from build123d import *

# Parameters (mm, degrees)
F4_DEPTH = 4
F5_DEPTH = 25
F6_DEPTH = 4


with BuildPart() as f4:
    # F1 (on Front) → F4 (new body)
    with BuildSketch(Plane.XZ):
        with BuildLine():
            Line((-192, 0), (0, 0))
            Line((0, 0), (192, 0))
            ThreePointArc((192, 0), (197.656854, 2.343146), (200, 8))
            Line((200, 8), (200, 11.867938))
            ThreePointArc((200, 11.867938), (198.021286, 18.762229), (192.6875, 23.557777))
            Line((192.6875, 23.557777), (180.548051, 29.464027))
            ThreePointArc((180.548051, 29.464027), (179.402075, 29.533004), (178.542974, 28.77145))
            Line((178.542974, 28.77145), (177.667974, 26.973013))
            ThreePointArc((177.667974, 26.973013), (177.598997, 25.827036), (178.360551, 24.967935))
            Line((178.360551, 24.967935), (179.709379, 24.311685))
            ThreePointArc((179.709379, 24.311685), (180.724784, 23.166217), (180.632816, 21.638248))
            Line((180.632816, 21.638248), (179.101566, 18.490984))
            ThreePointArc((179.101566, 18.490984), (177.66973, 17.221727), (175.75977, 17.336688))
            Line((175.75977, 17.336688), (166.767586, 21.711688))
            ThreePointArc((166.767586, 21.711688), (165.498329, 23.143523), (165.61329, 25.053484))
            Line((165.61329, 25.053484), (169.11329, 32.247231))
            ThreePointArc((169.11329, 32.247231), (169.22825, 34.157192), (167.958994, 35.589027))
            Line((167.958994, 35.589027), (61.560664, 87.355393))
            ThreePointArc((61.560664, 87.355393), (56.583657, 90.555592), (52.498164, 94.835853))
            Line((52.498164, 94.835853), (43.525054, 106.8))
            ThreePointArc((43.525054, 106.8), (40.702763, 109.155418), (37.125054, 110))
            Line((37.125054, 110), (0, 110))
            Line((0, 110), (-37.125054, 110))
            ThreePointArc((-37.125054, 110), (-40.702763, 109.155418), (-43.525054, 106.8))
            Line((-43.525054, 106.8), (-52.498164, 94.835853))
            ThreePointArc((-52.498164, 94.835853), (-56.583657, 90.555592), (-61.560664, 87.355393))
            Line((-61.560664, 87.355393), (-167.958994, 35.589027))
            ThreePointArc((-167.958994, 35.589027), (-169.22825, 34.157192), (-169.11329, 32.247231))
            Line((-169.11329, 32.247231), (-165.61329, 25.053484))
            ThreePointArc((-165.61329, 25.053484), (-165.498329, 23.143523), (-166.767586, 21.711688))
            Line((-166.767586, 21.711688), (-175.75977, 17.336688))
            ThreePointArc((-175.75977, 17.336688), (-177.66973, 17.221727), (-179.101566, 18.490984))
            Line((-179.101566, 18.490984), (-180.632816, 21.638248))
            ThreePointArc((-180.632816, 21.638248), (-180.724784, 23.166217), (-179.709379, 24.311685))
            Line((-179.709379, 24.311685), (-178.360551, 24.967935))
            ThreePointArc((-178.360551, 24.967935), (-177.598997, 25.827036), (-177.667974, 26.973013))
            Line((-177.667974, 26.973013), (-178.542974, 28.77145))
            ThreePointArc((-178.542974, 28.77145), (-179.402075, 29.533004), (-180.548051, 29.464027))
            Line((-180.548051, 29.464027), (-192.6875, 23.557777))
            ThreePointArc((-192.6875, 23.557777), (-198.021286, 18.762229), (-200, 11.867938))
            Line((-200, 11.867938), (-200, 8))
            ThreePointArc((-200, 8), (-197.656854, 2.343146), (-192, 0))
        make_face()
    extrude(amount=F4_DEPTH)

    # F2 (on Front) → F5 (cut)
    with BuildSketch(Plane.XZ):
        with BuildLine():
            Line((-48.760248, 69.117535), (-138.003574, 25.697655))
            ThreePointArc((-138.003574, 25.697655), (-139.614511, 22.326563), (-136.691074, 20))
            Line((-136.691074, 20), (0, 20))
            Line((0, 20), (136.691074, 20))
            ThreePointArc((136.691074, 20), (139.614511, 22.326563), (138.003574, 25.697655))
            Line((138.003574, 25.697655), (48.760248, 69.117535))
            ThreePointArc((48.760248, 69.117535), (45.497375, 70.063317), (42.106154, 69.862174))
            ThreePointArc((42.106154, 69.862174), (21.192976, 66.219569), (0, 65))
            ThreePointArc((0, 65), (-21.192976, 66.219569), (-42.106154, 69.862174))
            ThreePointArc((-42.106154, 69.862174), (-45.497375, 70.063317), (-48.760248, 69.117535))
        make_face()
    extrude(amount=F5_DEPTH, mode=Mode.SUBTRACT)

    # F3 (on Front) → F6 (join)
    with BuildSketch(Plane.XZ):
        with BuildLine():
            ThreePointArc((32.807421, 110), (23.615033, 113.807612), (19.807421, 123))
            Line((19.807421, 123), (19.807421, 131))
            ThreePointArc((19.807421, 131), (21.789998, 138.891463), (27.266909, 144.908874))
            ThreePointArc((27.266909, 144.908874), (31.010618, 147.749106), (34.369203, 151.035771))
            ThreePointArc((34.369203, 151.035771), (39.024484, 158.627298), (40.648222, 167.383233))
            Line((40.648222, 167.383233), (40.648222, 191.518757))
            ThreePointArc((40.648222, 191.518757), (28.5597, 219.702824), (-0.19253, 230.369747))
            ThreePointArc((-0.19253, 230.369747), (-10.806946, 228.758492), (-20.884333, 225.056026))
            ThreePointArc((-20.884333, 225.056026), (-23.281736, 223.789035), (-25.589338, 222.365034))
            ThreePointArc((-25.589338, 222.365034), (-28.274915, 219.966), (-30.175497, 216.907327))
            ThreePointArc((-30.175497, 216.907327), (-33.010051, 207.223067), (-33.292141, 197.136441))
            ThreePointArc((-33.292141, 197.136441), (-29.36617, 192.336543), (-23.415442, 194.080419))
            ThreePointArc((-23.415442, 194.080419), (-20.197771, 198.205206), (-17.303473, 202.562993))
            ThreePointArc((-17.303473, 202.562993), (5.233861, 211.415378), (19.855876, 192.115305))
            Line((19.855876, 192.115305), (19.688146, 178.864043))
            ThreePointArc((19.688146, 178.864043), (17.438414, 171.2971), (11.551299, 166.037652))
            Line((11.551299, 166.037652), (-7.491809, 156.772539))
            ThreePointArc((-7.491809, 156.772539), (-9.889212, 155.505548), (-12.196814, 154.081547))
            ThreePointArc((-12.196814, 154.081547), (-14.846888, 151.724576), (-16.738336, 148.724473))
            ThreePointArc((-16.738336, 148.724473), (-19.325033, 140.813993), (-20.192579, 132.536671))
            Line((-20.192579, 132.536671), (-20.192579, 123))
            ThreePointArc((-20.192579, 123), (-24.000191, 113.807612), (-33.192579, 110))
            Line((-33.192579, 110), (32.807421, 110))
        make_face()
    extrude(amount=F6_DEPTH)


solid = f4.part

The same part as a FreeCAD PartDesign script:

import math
import FreeCAD as App
import Part
import Sketcher

V = App.Vector
Q = App.Units.Quantity

doc = App.newDocument("Part")
params = doc.addObject("Spreadsheet::Sheet", "Params")
for row, (alias, value) in enumerate([
    ("sketch1_radius", "8.000001 mm"),
    ("sketch1_radius2", "13 mm"),
    ("sketch1_radius3", "2.000001 mm"),
    ("sketch1_radius4", "1.499998 mm"),
    ("sketch1_radius5", "2.5 mm"),
    ("pad1_length", "4 mm"),
    ("sketch2_radius", "3 mm"),
    ("sketch2_radius2", "10 mm"),
    ("pocket1_length", "25 mm"),
    ("sketch3_radius", "13.000001 mm"),
    ("sketch3_radius2", "13.000001 mm"),
    ("sketch3_width", "66 mm"),
    ("sketch3_height", "8 mm"),
    ("pad2_length", "4 mm"),
], start=1):
    params.set(f"A{row}", alias)
    params.set(f"B{row}", "=" + value)
    params.setAlias(f"B{row}", alias)

body = doc.addObject("PartDesign::Body", "Body")

# Sketch on XZ plane
sketch1 = body.newObject("Sketcher::SketchObject", "Sketch")
sketch1.AttachmentSupport = (doc.getObject("XZ_Plane"), [""])
sketch1.MapMode = "FlatFace"
sketch1.addGeometry([
    Part.LineSegment(V(-192, 0, 0), V(192, 0, 0)),  # 0
    Part.ArcOfCircle(Part.Circle(V(192, 8, 0), V(0, 0, 1), 8), math.radians(-90), math.radians(0)),  # 1
    Part.LineSegment(V(200, 8, 0), V(200, 11.9, 0)),  # 2
    Part.ArcOfCircle(Part.Circle(V(187, 11.9, 0), V(0, 0, 1), 13), math.radians(0), math.radians(64)),  # 3
    Part.LineSegment(V(192.7, 23.6, 0), V(180.5, 29.5, 0)),  # 4
    Part.ArcOfCircle(Part.Circle(V(179.9, 28.1, 0), V(0, 0, 1), 1.5), math.radians(64), math.radians(154)),  # 5
    Part.LineSegment(V(178.5, 28.8, 0), V(177.7, 27, 0)),  # 6
    Part.ArcOfCircle(Part.Circle(V(179, 26.3, 0), V(0, 0, 1), 1.5), math.radians(154), math.radians(244)),  # 7
    Part.LineSegment(V(178.4, 25, 0), V(179.7, 24.3, 0)),  # 8
    Part.ArcOfCircle(Part.Circle(V(178.8, 22.5, 0), V(0, 0, 1), 2), math.radians(-26), math.radians(64)),  # 9
    Part.LineSegment(V(180.6, 21.6, 0), V(179.1, 18.5, 0)),  # 10
    Part.ArcOfCircle(Part.Circle(V(176.9, 19.6, 0), V(0, 0, 1), 2.5), math.radians(-116), math.radians(-26)),  # 11
    Part.LineSegment(V(175.8, 17.3, 0), V(166.8, 21.7, 0)),  # 12
    Part.ArcOfCircle(Part.Circle(V(167.9, 24, 0), V(0, 0, 1), 2.5), math.radians(154), math.radians(244)),  # 13
    Part.LineSegment(V(165.6, 25.1, 0), V(169.1, 32.2, 0)),  # 14
    Part.ArcOfCircle(Part.Circle(V(166.9, 33.3, 0), V(0, 0, 1), 2.5), math.radians(-26), math.radians(64)),  # 15
    Part.LineSegment(V(168, 35.6, 0), V(61.6, 87.4, 0)),  # 16
    Part.ArcOfCircle(Part.Circle(V(72.5, 109.8, 0), V(0, 0, 1), 25), math.radians(-143), math.radians(-116)),  # 17
    Part.LineSegment(V(52.5, 94.8, 0), V(43.5, 106.8, 0)),  # 18
    Part.ArcOfCircle(Part.Circle(V(37.1, 102, 0), V(0, 0, 1), 8), math.radians(37), math.radians(90)),  # 19
    Part.LineSegment(V(37.1, 110, 0), V(-37.1, 110, 0)),  # 20
    Part.ArcOfCircle(Part.Circle(V(-37.1, 102, 0), V(0, 0, 1), 8), math.radians(90), math.radians(143)),  # 21
    Part.LineSegment(V(-43.5, 106.8, 0), V(-52.5, 94.8, 0)),  # 22
    Part.ArcOfCircle(Part.Circle(V(-72.5, 109.8, 0), V(0, 0, 1), 25), math.radians(-64), math.radians(-37)),  # 23
    Part.LineSegment(V(-61.6, 87.4, 0), V(-168, 35.6, 0)),  # 24
    Part.ArcOfCircle(Part.Circle(V(-166.9, 33.3, 0), V(0, 0, 1), 2.5), math.radians(116), math.radians(206)),  # 25
    Part.LineSegment(V(-169.1, 32.2, 0), V(-165.6, 25.1, 0)),  # 26
    Part.ArcOfCircle(Part.Circle(V(-167.9, 24, 0), V(0, 0, 1), 2.5), math.radians(-64), math.radians(26)),  # 27
    Part.LineSegment(V(-166.8, 21.7, 0), V(-175.8, 17.3, 0)),  # 28
    Part.ArcOfCircle(Part.Circle(V(-176.9, 19.6, 0), V(0, 0, 1), 2.5), math.radians(-154), math.radians(-64)),  # 29
    Part.LineSegment(V(-179.1, 18.5, 0), V(-180.6, 21.6, 0)),  # 30
    Part.ArcOfCircle(Part.Circle(V(-178.8, 22.5, 0), V(0, 0, 1), 2), math.radians(116), math.radians(206)),  # 31
    Part.LineSegment(V(-179.7, 24.3, 0), V(-178.4, 25, 0)),  # 32
    Part.ArcOfCircle(Part.Circle(V(-179, 26.3, 0), V(0, 0, 1), 1.5), math.radians(-64), math.radians(26)),  # 33
    Part.LineSegment(V(-177.7, 27, 0), V(-178.5, 28.8, 0)),  # 34
    Part.ArcOfCircle(Part.Circle(V(-179.9, 28.1, 0), V(0, 0, 1), 1.5), math.radians(26), math.radians(116)),  # 35
    Part.LineSegment(V(-180.5, 29.5, 0), V(-192.7, 23.6, 0)),  # 36
    Part.ArcOfCircle(Part.Circle(V(-187, 11.9, 0), V(0, 0, 1), 13), math.radians(116), math.radians(180)),  # 37
    Part.LineSegment(V(-200, 11.9, 0), V(-200, 8, 0)),  # 38
    Part.ArcOfCircle(Part.Circle(V(-192, 8, 0), V(0, 0, 1), 8), math.radians(-180), math.radians(-90)),  # 39
], False)
sketch1.addConstraint([
    Sketcher.Constraint("Tangent", 0, 2, 1, 1),
    Sketcher.Constraint("Tangent", 1, 2, 2, 1),
    Sketcher.Constraint("Tangent", 2, 2, 3, 1),
    Sketcher.Constraint("Tangent", 3, 2, 4, 1),
    Sketcher.Constraint("Tangent", 4, 2, 5, 1),
    Sketcher.Constraint("Tangent", 5, 2, 6, 1),
    Sketcher.Constraint("Tangent", 6, 2, 7, 1),
    Sketcher.Constraint("Tangent", 7, 2, 8, 1),
    Sketcher.Constraint("Tangent", 8, 2, 9, 2),
    Sketcher.Constraint("Tangent", 9, 1, 10, 1),
    Sketcher.Constraint("Tangent", 10, 2, 11, 2),
    Sketcher.Constraint("Tangent", 11, 1, 12, 1),
    Sketcher.Constraint("Tangent", 12, 2, 13, 2),
    Sketcher.Constraint("Tangent", 13, 1, 14, 1),
    Sketcher.Constraint("Tangent", 14, 2, 15, 1),
    Sketcher.Constraint("Tangent", 15, 2, 16, 1),
    Sketcher.Constraint("Tangent", 16, 2, 17, 2),
    Sketcher.Constraint("Tangent", 17, 1, 18, 1),
    Sketcher.Constraint("Tangent", 18, 2, 19, 1),
    Sketcher.Constraint("Tangent", 19, 2, 20, 1),
    Sketcher.Constraint("Tangent", 20, 2, 21, 1),
    Sketcher.Constraint("Tangent", 21, 2, 22, 1),
    Sketcher.Constraint("Tangent", 22, 2, 23, 2),
    Sketcher.Constraint("Tangent", 23, 1, 24, 1),
    Sketcher.Constraint("Tangent", 24, 2, 25, 1),
    Sketcher.Constraint("Tangent", 25, 2, 26, 1),
    Sketcher.Constraint("Tangent", 26, 2, 27, 2),
    Sketcher.Constraint("Tangent", 27, 1, 28, 1),
    Sketcher.Constraint("Tangent", 28, 2, 29, 2),
    Sketcher.Constraint("Tangent", 29, 1, 30, 1),
    Sketcher.Constraint("Tangent", 30, 2, 31, 2),
    Sketcher.Constraint("Tangent", 31, 1, 32, 1),
    Sketcher.Constraint("Tangent", 32, 2, 33, 1),
    Sketcher.Constraint("Tangent", 33, 2, 34, 1),
    Sketcher.Constraint("Tangent", 34, 2, 35, 1),
    Sketcher.Constraint("Tangent", 35, 2, 36, 1),
    Sketcher.Constraint("Tangent", 36, 2, 37, 1),
    Sketcher.Constraint("Tangent", 37, 2, 38, 1),
    Sketcher.Constraint("Tangent", 38, 2, 39, 1),
    Sketcher.Constraint("Tangent", 39, 2, 0, 1),
    Sketcher.Constraint("Horizontal", 0),
    Sketcher.Constraint("Vertical", 2),
    Sketcher.Constraint("Horizontal", 20),
    Sketcher.Constraint("Vertical", 38),
    Sketcher.Constraint("Equal", 5, 7),
    Sketcher.Constraint("Equal", 11, 13),
    Sketcher.Constraint("Equal", 11, 15),
    Sketcher.Constraint("Equal", 19, 21),
    Sketcher.Constraint("Equal", 17, 23),
    Sketcher.Constraint("Equal", 15, 25),
    Sketcher.Constraint("Equal", 13, 27),
    Sketcher.Constraint("Equal", 27, 29),
    Sketcher.Constraint("Equal", 9, 31),
    Sketcher.Constraint("Equal", 7, 33),
    Sketcher.Constraint("Equal", 33, 35),
    Sketcher.Constraint("Equal", 3, 37),
    Sketcher.Constraint("Equal", 1, 39),
    Sketcher.Constraint("Symmetric", 0, 2, 39, 2, -1, 1),
    Sketcher.Constraint("Symmetric", 17, 3, 23, 3, -2),
    Sketcher.Constraint("Symmetric", 15, 3, 25, 3, -2),
    Sketcher.Constraint("Symmetric", 13, 3, 27, 3, -2),
    Sketcher.Constraint("Symmetric", 11, 3, 29, 3, -2),
    Sketcher.Constraint("Symmetric", 9, 3, 31, 3, -2),
    Sketcher.Constraint("Symmetric", 7, 3, 33, 3, -2),
    Sketcher.Constraint("Symmetric", 5, 3, 35, 3, -2),
    Sketcher.Constraint("Perpendicular", 4, 6),
    Sketcher.Constraint("Perpendicular", 6, 8),
    Sketcher.Constraint("Perpendicular", 8, 10),
    Sketcher.Constraint("Perpendicular", 10, 12),
    Sketcher.Constraint("Perpendicular", 12, 14),
    Sketcher.Constraint("Perpendicular", 14, 16),
    Sketcher.Constraint("Perpendicular", 34, 36),
    Sketcher.Constraint("Horizontal", 18, 2, 21, 2),
    Sketcher.Constraint("Radius", 1, Q("8.000001 mm")),
    Sketcher.Constraint("Radius", 3, Q("13 mm")),
    Sketcher.Constraint("Radius", 9, Q("2.000001 mm")),
    Sketcher.Constraint("Radius", 5, Q("1.499998 mm")),
    Sketcher.Constraint("Radius", 11, Q("2.5 mm")),
    Sketcher.Constraint("DistanceX", 0, 1, 0, 2, Q("384 mm")),
    Sketcher.Constraint("Distance", 6, Q("2 mm")),
    Sketcher.Constraint("Distance", 12, Q("10 mm")),
    Sketcher.Constraint("Distance", 14, Q("8 mm")),
    Sketcher.Constraint("DistanceY", -1, 1, 19, 2, Q("110 mm")),
    Sketcher.Constraint("DistanceX", 17, 1, 17, 3, Q("19.999998 mm")),
    Sketcher.Constraint("DistanceY", 17, 1, 17, 3, Q("14.999999 mm")),
    Sketcher.Constraint("Distance", 4, Q("13.5 mm")),
    Sketcher.Constraint("Distance", 8, Q("1.5 mm")),
    Sketcher.Constraint("Distance", 10, Q("3.5 mm")),
    Sketcher.Constraint("DistanceY", -1, 1, 18, 2, Q("106.8 mm")),
    Sketcher.Constraint("DistanceX", 13, 1, 14, 2, Q("3.5 mm")),
    Sketcher.Constraint("DistanceY", 2, 1, 2, 2, Q("3.867938 mm")),
    Sketcher.Constraint("DistanceX", 21, 3, 15, 3, Q("203.990299 mm")),
])
sketch1.setExpression("Constraints[73]", "Params.sketch1_radius")
sketch1.setExpression("Constraints[74]", "Params.sketch1_radius2")
sketch1.setExpression("Constraints[75]", "Params.sketch1_radius3")
sketch1.setExpression("Constraints[76]", "Params.sketch1_radius4")
sketch1.setExpression("Constraints[77]", "Params.sketch1_radius5")
pad1 = body.newObject("PartDesign::Pad", "Pad")
pad1.Profile = sketch1
pad1.setExpression("Length", "Params.pad1_length")

# Sketch on XZ plane
sketch2 = body.newObject("Sketcher::SketchObject", "Sketch001")
sketch2.AttachmentSupport = (doc.getObject("XZ_Plane"), [""])
sketch2.MapMode = "FlatFace"
sketch2.addGeometry([
    Part.LineSegment(V(-48.8, 69.1, 0), V(-138, 25.7, 0)),  # 0
    Part.ArcOfCircle(Part.Circle(V(-136.7, 23, 0), V(0, 0, 1), 3), math.radians(116), math.radians(270)),  # 1
    Part.LineSegment(V(-136.7, 20, 0), V(136.7, 20, 0)),  # 2
    Part.ArcOfCircle(Part.Circle(V(136.7, 23, 0), V(0, 0, 1), 3), math.radians(-90), math.radians(64)),  # 3
    Part.LineSegment(V(138, 25.7, 0), V(48.8, 69.1, 0)),  # 4
    Part.ArcOfCircle(Part.Circle(V(44.4, 60.1, 0), V(0, 0, 1), 10), math.radians(64), math.radians(103)),  # 5
    Part.ArcOfCircle(Part.Circle(V(0, 249.7, 0), V(0, 0, 1), 184.7), math.radians(-90), math.radians(-76.83)),  # 6
    Part.ArcOfCircle(Part.Circle(V(0, 249.7, 0), V(0, 0, 1), 184.7), math.radians(-103.17), math.radians(-90)),  # 7
    Part.ArcOfCircle(Part.Circle(V(-44.4, 60.1, 0), V(0, 0, 1), 10), math.radians(77), math.radians(116)),  # 8
], False)
sketch2.addConstraint([
    Sketcher.Constraint("Tangent", 0, 2, 1, 1),
    Sketcher.Constraint("Tangent", 1, 2, 2, 1),
    Sketcher.Constraint("Tangent", 2, 2, 3, 1),
    Sketcher.Constraint("Tangent", 3, 2, 4, 1),
    Sketcher.Constraint("Tangent", 4, 2, 5, 1),
    Sketcher.Constraint("Tangent", 5, 2, 6, 2),
    Sketcher.Constraint("Tangent", 6, 1, 7, 2),
    Sketcher.Constraint("Tangent", 7, 1, 8, 1),
    Sketcher.Constraint("Tangent", 8, 2, 0, 1),
    Sketcher.Constraint("Horizontal", 2),
    Sketcher.Constraint("Equal", 1, 3),
    Sketcher.Constraint("Equal", 6, 7),
    Sketcher.Constraint("Equal", 5, 8),
    Sketcher.Constraint("Symmetric", 5, 3, 8, 3, -2),
    Sketcher.Constraint("PointOnObject", 6, 1, -2),
    Sketcher.Constraint("Horizontal", 0, 2, 3, 2),
    Sketcher.Constraint("Radius", 1, Q("3 mm")),
    Sketcher.Constraint("Radius", 5, Q("10 mm")),
    Sketcher.Constraint("DistanceY", -1, 1, 1, 3, Q("23 mm")),
    Sketcher.Constraint("DistanceY", -1, 1, 6, 1, Q("65 mm")),
    Sketcher.Constraint("Radius", 6, Q("184.749582 mm")),
    Sketcher.Constraint("DistanceX", 5, 3, 4, 2, Q("4.375 mm")),
    Sketcher.Constraint("Distance", 0, Q("99.245439 mm")),
])
sketch2.setExpression("Constraints[16]", "Params.sketch2_radius")
sketch2.setExpression("Constraints[17]", "Params.sketch2_radius2")
pocket1 = body.newObject("PartDesign::Pocket", "Pocket")
pocket1.Profile = sketch2
pocket1.setExpression("Length", "Params.pocket1_length")
pocket1.Reversed = True

# Sketch on XZ plane
sketch3 = body.newObject("Sketcher::SketchObject", "Sketch002")
sketch3.AttachmentSupport = (doc.getObject("XZ_Plane"), [""])
sketch3.MapMode = "FlatFace"
sketch3.addGeometry([
    Part.ArcOfCircle(Part.Circle(V(32.807422, 123.000001, 0), V(0, 0, 1), 13.000001), math.radians(-179.999998), math.radians(-90.000002)),  # 0
    Part.LineSegment(V(19.807421, 123, 0), V(19.807421, 131, 0)),  # 1
    Part.ArcOfCircle(Part.Circle(V(36.504327, 131, 0), V(0, 0, 1), 16.696906), math.radians(123.589666), math.radians(179.999999)),  # 2
    Part.ArcOfCircle(Part.Circle(V(6.546222, 176.108213, 0), V(0, 0, 1), 37.453246), math.radians(-56.410326), math.radians(-42.023325)),  # 3
    Part.ArcOfCircle(Part.Circle(V(16.228356, 167.383233, 0), V(0, 0, 1), 24.419866), math.radians(-42.023313), math.radians(-0.000001)),  # 4
    Part.LineSegment(V(40.648222, 167.383233, 0), V(40.648222, 191.518757, 0)),  # 5
    Part.ArcOfCircle(Part.Circle(V(1.748762, 191.518758, 0), V(0, 0, 1), 38.89946), math.radians(-0.000001), math.radians(92.860556)),  # 6
    Part.ArcOfCircle(Part.Circle(V(2.471666, 177.051143, 0), V(0, 0, 1), 53.385124), math.radians(92.860546), math.radians(115.944488)),  # 7
    Part.ArcOfCircle(Part.Circle(V(-3.099551, 188.501944, 0), V(0, 0, 1), 40.650946), math.radians(115.944469), math.radians(123.589673)),  # 8
    Part.ArcOfCircle(Part.Circle(V(-18.592443, 211.829734, 0), V(0, 0, 1), 12.647098), math.radians(123.589653), math.radians(156.329087)),  # 9
    Part.ArcOfCircle(Part.Circle(V(5.913416, 201.087247, 0), V(0, 0, 1), 39.404119), math.radians(156.329085), math.radians(185.754361)),  # 10
    Part.ArcOfCircle(Part.Circle(V(-27.706846, 197.69928, 0), V(0, 0, 1), 5.613582), math.radians(-174.245637), math.radians(-40.140312)),  # 11
    Part.ArcOfCircle(Part.Circle(V(-75.906431, 238.345098, 0), V(0, 0, 1), 68.663424), math.radians(-40.140315), math.radians(-31.407625)),  # 12
    Part.ArcOfCircle(Part.Circle(V(-0.19253, 192.115304, 0), V(0, 0, 1), 20.048406), math.radians(0.000003), math.radians(148.592377)),  # 13
    Part.LineSegment(V(19.855876, 192.115305, 0), V(19.688146, 178.864043, 0)),  # 14
    Part.ArcOfCircle(Part.Circle(V(5.221742, 179.047151, 0), V(0, 0, 1), 14.467562), math.radians(-64.055529), math.radians(-0.725182)),  # 15
    Part.LineSegment(V(11.551299, 166.037652, 0), V(-7.491809, 156.772539, 0)),  # 16
    Part.ArcOfCircle(Part.Circle(V(10.292973, 120.218457, 0), V(0, 0, 1), 40.650946), math.radians(115.944469), math.radians(123.589673)),  # 17
    Part.ArcOfCircle(Part.Circle(V(-5.19991, 143.546239, 0), V(0, 0, 1), 12.64711), math.radians(123.589669), math.radians(155.83033)),  # 18
    Part.ArcOfCircle(Part.Circle(V(19.211491, 132.590856, 0), V(0, 0, 1), 39.404107), math.radians(155.830339), math.radians(180.078788)),  # 19
    Part.LineSegment(V(-20.192579, 132.536671, 0), V(-20.192579, 123, 0)),  # 20
    Part.ArcOfCircle(Part.Circle(V(-33.19258, 123.000001, 0), V(0, 0, 1), 13.000001), math.radians(-89.999998), math.radians(-0.000002)),  # 21
    Part.LineSegment(V(-33.192579, 110, 0), V(32.807421, 110, 0)),  # 22
], False)
sketch3.addConstraint([
    Sketcher.Constraint("Coincident", 0, 1, 1, 1),
    Sketcher.Constraint("Coincident", 1, 2, 2, 2),
    Sketcher.Constraint("Coincident", 2, 1, 3, 1),
    Sketcher.Constraint("Coincident", 3, 2, 4, 1),
    Sketcher.Constraint("Coincident", 4, 2, 5, 1),
    Sketcher.Constraint("Coincident", 5, 2, 6, 1),
    Sketcher.Constraint("Coincident", 6, 2, 7, 1),
    Sketcher.Constraint("Coincident", 7, 2, 8, 1),
    Sketcher.Constraint("Coincident", 8, 2, 9, 1),
    Sketcher.Constraint("Coincident", 9, 2, 10, 1),
    Sketcher.Constraint("Coincident", 10, 2, 11, 1),
    Sketcher.Constraint("Coincident", 11, 2, 12, 1),
    Sketcher.Constraint("Coincident", 12, 2, 13, 2),
    Sketcher.Constraint("Coincident", 13, 1, 14, 1),
    Sketcher.Constraint("Coincident", 14, 2, 15, 2),
    Sketcher.Constraint("Coincident", 15, 1, 16, 1),
    Sketcher.Constraint("Coincident", 16, 2, 17, 1),
    Sketcher.Constraint("Coincident", 17, 2, 18, 1),
    Sketcher.Constraint("Coincident", 18, 2, 19, 1),
    Sketcher.Constraint("Coincident", 19, 2, 20, 1),
    Sketcher.Constraint("Coincident", 20, 2, 21, 2),
    Sketcher.Constraint("Coincident", 21, 1, 22, 1),
    Sketcher.Constraint("Coincident", 22, 2, 0, 2),
    Sketcher.Constraint("Vertical", 1),
    Sketcher.Constraint("Vertical", 5),
    Sketcher.Constraint("Vertical", 20),
    Sketcher.Constraint("Horizontal", 22),
    Sketcher.Constraint("Radius", 0, Q("13.000001 mm")),
    Sketcher.Constraint("Radius", 21, Q("13.000001 mm")),
    Sketcher.Constraint("DistanceX", 22, 1, 22, 2, Q("66 mm")),
    Sketcher.Constraint("DistanceY", 1, 1, 1, 2, Q("8 mm")),
    Sketcher.Constraint("DistanceY", -1, 1, 0, 3, Q("123.000001 mm")),
    Sketcher.Constraint("DistanceY", -1, 1, 2, 3, Q("131 mm")),
    Sketcher.Constraint("DistanceY", -1, 1, 0, 1, Q("123 mm")),
    Sketcher.Constraint("DistanceY", -1, 1, 20, 2, Q("123 mm")),
    Sketcher.Constraint("DistanceX", 21, 3, 0, 3, Q("66.000001 mm")),
    Sketcher.Constraint("DistanceX", 21, 1, 20, 2, Q("13 mm")),
    Sketcher.Constraint("Radius", 6, Q("38.89946 mm")),
    Sketcher.Constraint("Radius", 10, Q("39.404119 mm")),
    Sketcher.Constraint("Radius", 18, Q("12.64711 mm")),
    Sketcher.Constraint("Radius", 2, Q("16.696906 mm")),
    Sketcher.Constraint("Radius", 3, Q("37.453246 mm")),
    Sketcher.Constraint("Radius", 4, Q("24.419866 mm")),
    Sketcher.Constraint("Radius", 7, Q("53.385124 mm")),
    Sketcher.Constraint("Radius", 8, Q("40.650946 mm")),
    Sketcher.Constraint("Radius", 9, Q("12.647098 mm")),
    Sketcher.Constraint("Radius", 11, Q("5.613582 mm")),
    Sketcher.Constraint("Radius", 12, Q("68.663424 mm")),
    Sketcher.Constraint("Radius", 13, Q("20.048406 mm")),
    Sketcher.Constraint("Radius", 15, Q("14.467562 mm")),
    Sketcher.Constraint("Radius", 17, Q("40.650946 mm")),
    Sketcher.Constraint("Radius", 19, Q("39.404107 mm")),
    Sketcher.Constraint("DistanceX", 3, 3, 4, 2, Q("34.102 mm")),
    Sketcher.Constraint("DistanceX", 11, 2, 9, 3, Q("4.822999 mm")),
    Sketcher.Constraint("Distance", 16, Q("21.1774 mm")),
    Sketcher.Constraint("DistanceY", 20, 2, 20, 1, Q("9.536671 mm")),
    Sketcher.Constraint("DistanceX", -1, 1, 15, 1, Q("11.551299 mm")),
    Sketcher.Constraint("DistanceX", 3, 3, 0, 3, Q("26.2612 mm")),
    Sketcher.Constraint("DistanceY", 7, 3, 8, 3, Q("11.450801 mm")),
    Sketcher.Constraint("DistanceX", 9, 3, 4, 3, Q("34.8208 mm")),
    Sketcher.Constraint("DistanceY", 4, 3, 9, 3, Q("44.446501 mm")),
    Sketcher.Constraint("DistanceY", 17, 3, 19, 3, Q("12.372399 mm")),
    Sketcher.Constraint("DistanceX", 18, 3, 19, 3, Q("24.4114 mm")),
    Sketcher.Constraint("DistanceY", 10, 3, 6, 2, Q("29.2825 mm")),
    Sketcher.Constraint("DistanceY", 9, 3, 8, 2, Q("10.5353 mm")),
    Sketcher.Constraint("DistanceY", 9, 2, 7, 2, Q("8.148699 mm")),
    Sketcher.Constraint("DistanceX", 10, 2, 11, 2, Q("9.876699 mm")),
    Sketcher.Constraint("DistanceY", 7, 3, 14, 2, Q("1.8129 mm")),
    Sketcher.Constraint("DistanceY", 15, 1, 15, 3, Q("13.009499 mm")),
    Sketcher.Constraint("DistanceX", 16, 2, 18, 3, Q("2.291899 mm")),
    Sketcher.Constraint("DistanceY", 19, 2, 18, 2, Q("16.187802 mm")),
    Sketcher.Constraint("DistanceY", 5, 1, 5, 2, Q("24.135524 mm")),
    Sketcher.Constraint("DistanceX", -1, 1, 0, 3, Q("32.807422 mm")),
    Sketcher.Constraint("DistanceX", 8, 3, -1, 1, Q("3.099551 mm")),
    Sketcher.Constraint("DistanceY", -1, 1, 11, 3, Q("197.69928 mm")),
    Sketcher.Constraint("DistanceX", 12, 3, -1, 1, Q("75.906431 mm")),
    Sketcher.Constraint("DistanceX", 13, 3, -1, 1, Q("0.19253 mm")),
    Sketcher.Constraint("DistanceY", -1, 1, 15, 3, Q("179.047151 mm")),
    Sketcher.Constraint("DistanceX", -1, 1, 2, 1, Q("27.266909 mm")),
    Sketcher.Constraint("DistanceY", -1, 1, 3, 2, Q("151.035771 mm")),
    Sketcher.Constraint("DistanceX", 6, 2, -1, 1, Q("0.19253 mm")),
    Sketcher.Constraint("DistanceY", 3, 2, 4, 2, Q("16.347462 mm")),
    Sketcher.Constraint("DistanceX", 7, 2, 9, 3, Q("2.29189 mm")),
    Sketcher.Constraint("DistanceX", 9, 3, 12, 2, Q("1.28897 mm")),
    Sketcher.Constraint("DistanceY", 5, 2, 13, 1, Q("0.596548 mm")),
    Sketcher.Constraint("DistanceY", 17, 2, 16, 2, Q("2.690992 mm")),
])
sketch3.setExpression("Constraints[27]", "Params.sketch3_radius")
sketch3.setExpression("Constraints[28]", "Params.sketch3_radius2")
sketch3.setExpression("Constraints[29]", "Params.sketch3_width")
sketch3.setExpression("Constraints[30]", "Params.sketch3_height")
pad2 = body.newObject("PartDesign::Pad", "Pad001")
pad2.Profile = sketch3
pad2.setExpression("Length", "Params.pad2_length")

doc.recompute()
